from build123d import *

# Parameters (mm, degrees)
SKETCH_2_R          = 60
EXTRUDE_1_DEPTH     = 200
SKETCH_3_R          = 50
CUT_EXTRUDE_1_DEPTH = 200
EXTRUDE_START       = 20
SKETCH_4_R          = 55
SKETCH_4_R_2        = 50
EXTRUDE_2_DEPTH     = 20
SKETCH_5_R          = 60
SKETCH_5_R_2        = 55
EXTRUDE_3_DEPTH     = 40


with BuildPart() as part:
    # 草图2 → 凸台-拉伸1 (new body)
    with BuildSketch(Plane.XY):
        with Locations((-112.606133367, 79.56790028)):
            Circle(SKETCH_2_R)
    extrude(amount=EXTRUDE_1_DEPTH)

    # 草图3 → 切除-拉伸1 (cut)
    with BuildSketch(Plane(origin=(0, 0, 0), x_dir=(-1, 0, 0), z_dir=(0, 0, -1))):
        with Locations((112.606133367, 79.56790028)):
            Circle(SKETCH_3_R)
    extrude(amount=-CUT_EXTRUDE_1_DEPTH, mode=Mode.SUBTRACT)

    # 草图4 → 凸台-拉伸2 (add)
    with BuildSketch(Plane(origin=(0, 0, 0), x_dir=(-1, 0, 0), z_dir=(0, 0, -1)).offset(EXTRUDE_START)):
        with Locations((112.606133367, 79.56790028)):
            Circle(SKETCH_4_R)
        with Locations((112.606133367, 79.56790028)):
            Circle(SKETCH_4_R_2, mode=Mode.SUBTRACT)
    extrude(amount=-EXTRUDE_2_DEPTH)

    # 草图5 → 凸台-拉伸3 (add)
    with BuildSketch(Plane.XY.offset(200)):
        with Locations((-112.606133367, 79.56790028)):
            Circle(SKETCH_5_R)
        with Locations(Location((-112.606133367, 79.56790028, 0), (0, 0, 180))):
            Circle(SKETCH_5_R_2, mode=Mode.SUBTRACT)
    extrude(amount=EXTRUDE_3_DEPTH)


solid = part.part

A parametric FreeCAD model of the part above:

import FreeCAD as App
import Part
import Sketcher
from FreeCAD import Vector
Q = App.Units.Quantity

doc = App.newDocument("Part")
body = doc.addObject("PartDesign::Body", "Body")

sketch1 = body.newObject("Sketcher::SketchObject", "Sketch")
sketch1.AttachmentSupport = (doc.getObject("XY_Plane"), [""])
sketch1.MapMode = "FlatFace"
sketch1.addGeometry(Part.Circle(Vector(-113, 80, 0), Vector(0, 0, 1), 60), False)
sketch1.addConstraint([
    Sketcher.Constraint("Diameter", 0, Q("120 mm")),
    Sketcher.Constraint("DistanceY", -1, 1, 0, 3, Q("79.5679 mm")),
    Sketcher.Constraint("DistanceX", 0, 3, -1, 1, Q("112.606133 mm")),
])
pad1 = body.newObject("PartDesign::Pad", "Pad")
pad1.Profile = sketch1
pad1.Length = 200

sketch2 = body.newObject("Sketcher::SketchObject", "Sketch001")
sketch2.AttachmentSupport = (doc.getObject("XY_Plane"), [""])
sketch2.MapMode = "FlatFace"
sketch2.addGeometry(Part.Circle(Vector(-113, 80, 0), Vector(0, 0, 1), 50), False)
sketch2.addConstraint([
    Sketcher.Constraint("Diameter", 0, Q("100 mm")),
    Sketcher.Constraint("DistanceY", -1, 1, 0, 3, Q("79.5679 mm")),
    Sketcher.Constraint("DistanceX", 0, 3, -1, 1, Q("112.606133 mm")),
])
pocket1 = body.newObject("PartDesign::Pocket", "Pocket")
pocket1.Profile = sketch2
pocket1.Length = 200
pocket1.Reversed = True

sketch3 = body.newObject("Sketcher::SketchObject", "Sketch002")
sketch3.AttachmentSupport = (doc.getObject("XY_Plane"), [""])
sketch3.MapMode = "FlatFace"
sketch3.AttachmentOffset = App.Placement(Vector(0, 0, -20), App.Rotation())
sketch3.addGeometry([
    Part.Circle(Vector(-113, 80, 0), Vector(0, 0, 1), 55),
    Part.Circle(Vector(-113, 80, 0), Vector(0, 0, 1), 50),
], False)
sketch3.addConstraint([
    Sketcher.Constraint("Coincident", 1, 3, 0, 3),
    Sketcher.Constraint("Diameter", 0, Q("110 mm")),
    Sketcher.Constraint("Diameter", 1, Q("100 mm")),
    Sketcher.Constraint("DistanceY", -1, 1, 0, 3, Q("79.5679 mm")),
    Sketcher.Constraint("DistanceX", 0, 3, -1, 1, Q("112.606133 mm")),
])
pad2 = body.newObject("PartDesign::Pad", "Pad001")
pad2.Profile = sketch3
pad2.Length = 20

sketch4 = body.newObject("Sketcher::SketchObject", "Sketch003")
sketch4.AttachmentSupport = (doc.getObject("XY_Plane"), [""])
sketch4.MapMode = "FlatFace"
sketch4.AttachmentOffset = App.Placement(Vector(0, 0, 200), App.Rotation())
sketch4.addGeometry([
    Part.Circle(Vector(-113, 80, 0), Vector(0, 0, 1), 60),
    Part.Circle(Vector(-113, 80, 0), Vector(0, 0, 1), 55),
], False)
sketch4.addConstraint([
    Sketcher.Constraint("Coincident", 1, 3, 0, 3),
    Sketcher.Constraint("Diameter", 0, Q("120 mm")),
    Sketcher.Constraint("Diameter", 1, Q("110 mm")),
    Sketcher.Constraint("DistanceY", -1, 1, 0, 3, Q("79.5679 mm")),
    Sketcher.Constraint("DistanceX", 0, 3, -1, 1, Q("112.606133 mm")),
])
pad3 = body.newObject("PartDesign::Pad", "Pad002")
pad3.Profile = sketch4
pad3.Length = 40

doc.recompute()
